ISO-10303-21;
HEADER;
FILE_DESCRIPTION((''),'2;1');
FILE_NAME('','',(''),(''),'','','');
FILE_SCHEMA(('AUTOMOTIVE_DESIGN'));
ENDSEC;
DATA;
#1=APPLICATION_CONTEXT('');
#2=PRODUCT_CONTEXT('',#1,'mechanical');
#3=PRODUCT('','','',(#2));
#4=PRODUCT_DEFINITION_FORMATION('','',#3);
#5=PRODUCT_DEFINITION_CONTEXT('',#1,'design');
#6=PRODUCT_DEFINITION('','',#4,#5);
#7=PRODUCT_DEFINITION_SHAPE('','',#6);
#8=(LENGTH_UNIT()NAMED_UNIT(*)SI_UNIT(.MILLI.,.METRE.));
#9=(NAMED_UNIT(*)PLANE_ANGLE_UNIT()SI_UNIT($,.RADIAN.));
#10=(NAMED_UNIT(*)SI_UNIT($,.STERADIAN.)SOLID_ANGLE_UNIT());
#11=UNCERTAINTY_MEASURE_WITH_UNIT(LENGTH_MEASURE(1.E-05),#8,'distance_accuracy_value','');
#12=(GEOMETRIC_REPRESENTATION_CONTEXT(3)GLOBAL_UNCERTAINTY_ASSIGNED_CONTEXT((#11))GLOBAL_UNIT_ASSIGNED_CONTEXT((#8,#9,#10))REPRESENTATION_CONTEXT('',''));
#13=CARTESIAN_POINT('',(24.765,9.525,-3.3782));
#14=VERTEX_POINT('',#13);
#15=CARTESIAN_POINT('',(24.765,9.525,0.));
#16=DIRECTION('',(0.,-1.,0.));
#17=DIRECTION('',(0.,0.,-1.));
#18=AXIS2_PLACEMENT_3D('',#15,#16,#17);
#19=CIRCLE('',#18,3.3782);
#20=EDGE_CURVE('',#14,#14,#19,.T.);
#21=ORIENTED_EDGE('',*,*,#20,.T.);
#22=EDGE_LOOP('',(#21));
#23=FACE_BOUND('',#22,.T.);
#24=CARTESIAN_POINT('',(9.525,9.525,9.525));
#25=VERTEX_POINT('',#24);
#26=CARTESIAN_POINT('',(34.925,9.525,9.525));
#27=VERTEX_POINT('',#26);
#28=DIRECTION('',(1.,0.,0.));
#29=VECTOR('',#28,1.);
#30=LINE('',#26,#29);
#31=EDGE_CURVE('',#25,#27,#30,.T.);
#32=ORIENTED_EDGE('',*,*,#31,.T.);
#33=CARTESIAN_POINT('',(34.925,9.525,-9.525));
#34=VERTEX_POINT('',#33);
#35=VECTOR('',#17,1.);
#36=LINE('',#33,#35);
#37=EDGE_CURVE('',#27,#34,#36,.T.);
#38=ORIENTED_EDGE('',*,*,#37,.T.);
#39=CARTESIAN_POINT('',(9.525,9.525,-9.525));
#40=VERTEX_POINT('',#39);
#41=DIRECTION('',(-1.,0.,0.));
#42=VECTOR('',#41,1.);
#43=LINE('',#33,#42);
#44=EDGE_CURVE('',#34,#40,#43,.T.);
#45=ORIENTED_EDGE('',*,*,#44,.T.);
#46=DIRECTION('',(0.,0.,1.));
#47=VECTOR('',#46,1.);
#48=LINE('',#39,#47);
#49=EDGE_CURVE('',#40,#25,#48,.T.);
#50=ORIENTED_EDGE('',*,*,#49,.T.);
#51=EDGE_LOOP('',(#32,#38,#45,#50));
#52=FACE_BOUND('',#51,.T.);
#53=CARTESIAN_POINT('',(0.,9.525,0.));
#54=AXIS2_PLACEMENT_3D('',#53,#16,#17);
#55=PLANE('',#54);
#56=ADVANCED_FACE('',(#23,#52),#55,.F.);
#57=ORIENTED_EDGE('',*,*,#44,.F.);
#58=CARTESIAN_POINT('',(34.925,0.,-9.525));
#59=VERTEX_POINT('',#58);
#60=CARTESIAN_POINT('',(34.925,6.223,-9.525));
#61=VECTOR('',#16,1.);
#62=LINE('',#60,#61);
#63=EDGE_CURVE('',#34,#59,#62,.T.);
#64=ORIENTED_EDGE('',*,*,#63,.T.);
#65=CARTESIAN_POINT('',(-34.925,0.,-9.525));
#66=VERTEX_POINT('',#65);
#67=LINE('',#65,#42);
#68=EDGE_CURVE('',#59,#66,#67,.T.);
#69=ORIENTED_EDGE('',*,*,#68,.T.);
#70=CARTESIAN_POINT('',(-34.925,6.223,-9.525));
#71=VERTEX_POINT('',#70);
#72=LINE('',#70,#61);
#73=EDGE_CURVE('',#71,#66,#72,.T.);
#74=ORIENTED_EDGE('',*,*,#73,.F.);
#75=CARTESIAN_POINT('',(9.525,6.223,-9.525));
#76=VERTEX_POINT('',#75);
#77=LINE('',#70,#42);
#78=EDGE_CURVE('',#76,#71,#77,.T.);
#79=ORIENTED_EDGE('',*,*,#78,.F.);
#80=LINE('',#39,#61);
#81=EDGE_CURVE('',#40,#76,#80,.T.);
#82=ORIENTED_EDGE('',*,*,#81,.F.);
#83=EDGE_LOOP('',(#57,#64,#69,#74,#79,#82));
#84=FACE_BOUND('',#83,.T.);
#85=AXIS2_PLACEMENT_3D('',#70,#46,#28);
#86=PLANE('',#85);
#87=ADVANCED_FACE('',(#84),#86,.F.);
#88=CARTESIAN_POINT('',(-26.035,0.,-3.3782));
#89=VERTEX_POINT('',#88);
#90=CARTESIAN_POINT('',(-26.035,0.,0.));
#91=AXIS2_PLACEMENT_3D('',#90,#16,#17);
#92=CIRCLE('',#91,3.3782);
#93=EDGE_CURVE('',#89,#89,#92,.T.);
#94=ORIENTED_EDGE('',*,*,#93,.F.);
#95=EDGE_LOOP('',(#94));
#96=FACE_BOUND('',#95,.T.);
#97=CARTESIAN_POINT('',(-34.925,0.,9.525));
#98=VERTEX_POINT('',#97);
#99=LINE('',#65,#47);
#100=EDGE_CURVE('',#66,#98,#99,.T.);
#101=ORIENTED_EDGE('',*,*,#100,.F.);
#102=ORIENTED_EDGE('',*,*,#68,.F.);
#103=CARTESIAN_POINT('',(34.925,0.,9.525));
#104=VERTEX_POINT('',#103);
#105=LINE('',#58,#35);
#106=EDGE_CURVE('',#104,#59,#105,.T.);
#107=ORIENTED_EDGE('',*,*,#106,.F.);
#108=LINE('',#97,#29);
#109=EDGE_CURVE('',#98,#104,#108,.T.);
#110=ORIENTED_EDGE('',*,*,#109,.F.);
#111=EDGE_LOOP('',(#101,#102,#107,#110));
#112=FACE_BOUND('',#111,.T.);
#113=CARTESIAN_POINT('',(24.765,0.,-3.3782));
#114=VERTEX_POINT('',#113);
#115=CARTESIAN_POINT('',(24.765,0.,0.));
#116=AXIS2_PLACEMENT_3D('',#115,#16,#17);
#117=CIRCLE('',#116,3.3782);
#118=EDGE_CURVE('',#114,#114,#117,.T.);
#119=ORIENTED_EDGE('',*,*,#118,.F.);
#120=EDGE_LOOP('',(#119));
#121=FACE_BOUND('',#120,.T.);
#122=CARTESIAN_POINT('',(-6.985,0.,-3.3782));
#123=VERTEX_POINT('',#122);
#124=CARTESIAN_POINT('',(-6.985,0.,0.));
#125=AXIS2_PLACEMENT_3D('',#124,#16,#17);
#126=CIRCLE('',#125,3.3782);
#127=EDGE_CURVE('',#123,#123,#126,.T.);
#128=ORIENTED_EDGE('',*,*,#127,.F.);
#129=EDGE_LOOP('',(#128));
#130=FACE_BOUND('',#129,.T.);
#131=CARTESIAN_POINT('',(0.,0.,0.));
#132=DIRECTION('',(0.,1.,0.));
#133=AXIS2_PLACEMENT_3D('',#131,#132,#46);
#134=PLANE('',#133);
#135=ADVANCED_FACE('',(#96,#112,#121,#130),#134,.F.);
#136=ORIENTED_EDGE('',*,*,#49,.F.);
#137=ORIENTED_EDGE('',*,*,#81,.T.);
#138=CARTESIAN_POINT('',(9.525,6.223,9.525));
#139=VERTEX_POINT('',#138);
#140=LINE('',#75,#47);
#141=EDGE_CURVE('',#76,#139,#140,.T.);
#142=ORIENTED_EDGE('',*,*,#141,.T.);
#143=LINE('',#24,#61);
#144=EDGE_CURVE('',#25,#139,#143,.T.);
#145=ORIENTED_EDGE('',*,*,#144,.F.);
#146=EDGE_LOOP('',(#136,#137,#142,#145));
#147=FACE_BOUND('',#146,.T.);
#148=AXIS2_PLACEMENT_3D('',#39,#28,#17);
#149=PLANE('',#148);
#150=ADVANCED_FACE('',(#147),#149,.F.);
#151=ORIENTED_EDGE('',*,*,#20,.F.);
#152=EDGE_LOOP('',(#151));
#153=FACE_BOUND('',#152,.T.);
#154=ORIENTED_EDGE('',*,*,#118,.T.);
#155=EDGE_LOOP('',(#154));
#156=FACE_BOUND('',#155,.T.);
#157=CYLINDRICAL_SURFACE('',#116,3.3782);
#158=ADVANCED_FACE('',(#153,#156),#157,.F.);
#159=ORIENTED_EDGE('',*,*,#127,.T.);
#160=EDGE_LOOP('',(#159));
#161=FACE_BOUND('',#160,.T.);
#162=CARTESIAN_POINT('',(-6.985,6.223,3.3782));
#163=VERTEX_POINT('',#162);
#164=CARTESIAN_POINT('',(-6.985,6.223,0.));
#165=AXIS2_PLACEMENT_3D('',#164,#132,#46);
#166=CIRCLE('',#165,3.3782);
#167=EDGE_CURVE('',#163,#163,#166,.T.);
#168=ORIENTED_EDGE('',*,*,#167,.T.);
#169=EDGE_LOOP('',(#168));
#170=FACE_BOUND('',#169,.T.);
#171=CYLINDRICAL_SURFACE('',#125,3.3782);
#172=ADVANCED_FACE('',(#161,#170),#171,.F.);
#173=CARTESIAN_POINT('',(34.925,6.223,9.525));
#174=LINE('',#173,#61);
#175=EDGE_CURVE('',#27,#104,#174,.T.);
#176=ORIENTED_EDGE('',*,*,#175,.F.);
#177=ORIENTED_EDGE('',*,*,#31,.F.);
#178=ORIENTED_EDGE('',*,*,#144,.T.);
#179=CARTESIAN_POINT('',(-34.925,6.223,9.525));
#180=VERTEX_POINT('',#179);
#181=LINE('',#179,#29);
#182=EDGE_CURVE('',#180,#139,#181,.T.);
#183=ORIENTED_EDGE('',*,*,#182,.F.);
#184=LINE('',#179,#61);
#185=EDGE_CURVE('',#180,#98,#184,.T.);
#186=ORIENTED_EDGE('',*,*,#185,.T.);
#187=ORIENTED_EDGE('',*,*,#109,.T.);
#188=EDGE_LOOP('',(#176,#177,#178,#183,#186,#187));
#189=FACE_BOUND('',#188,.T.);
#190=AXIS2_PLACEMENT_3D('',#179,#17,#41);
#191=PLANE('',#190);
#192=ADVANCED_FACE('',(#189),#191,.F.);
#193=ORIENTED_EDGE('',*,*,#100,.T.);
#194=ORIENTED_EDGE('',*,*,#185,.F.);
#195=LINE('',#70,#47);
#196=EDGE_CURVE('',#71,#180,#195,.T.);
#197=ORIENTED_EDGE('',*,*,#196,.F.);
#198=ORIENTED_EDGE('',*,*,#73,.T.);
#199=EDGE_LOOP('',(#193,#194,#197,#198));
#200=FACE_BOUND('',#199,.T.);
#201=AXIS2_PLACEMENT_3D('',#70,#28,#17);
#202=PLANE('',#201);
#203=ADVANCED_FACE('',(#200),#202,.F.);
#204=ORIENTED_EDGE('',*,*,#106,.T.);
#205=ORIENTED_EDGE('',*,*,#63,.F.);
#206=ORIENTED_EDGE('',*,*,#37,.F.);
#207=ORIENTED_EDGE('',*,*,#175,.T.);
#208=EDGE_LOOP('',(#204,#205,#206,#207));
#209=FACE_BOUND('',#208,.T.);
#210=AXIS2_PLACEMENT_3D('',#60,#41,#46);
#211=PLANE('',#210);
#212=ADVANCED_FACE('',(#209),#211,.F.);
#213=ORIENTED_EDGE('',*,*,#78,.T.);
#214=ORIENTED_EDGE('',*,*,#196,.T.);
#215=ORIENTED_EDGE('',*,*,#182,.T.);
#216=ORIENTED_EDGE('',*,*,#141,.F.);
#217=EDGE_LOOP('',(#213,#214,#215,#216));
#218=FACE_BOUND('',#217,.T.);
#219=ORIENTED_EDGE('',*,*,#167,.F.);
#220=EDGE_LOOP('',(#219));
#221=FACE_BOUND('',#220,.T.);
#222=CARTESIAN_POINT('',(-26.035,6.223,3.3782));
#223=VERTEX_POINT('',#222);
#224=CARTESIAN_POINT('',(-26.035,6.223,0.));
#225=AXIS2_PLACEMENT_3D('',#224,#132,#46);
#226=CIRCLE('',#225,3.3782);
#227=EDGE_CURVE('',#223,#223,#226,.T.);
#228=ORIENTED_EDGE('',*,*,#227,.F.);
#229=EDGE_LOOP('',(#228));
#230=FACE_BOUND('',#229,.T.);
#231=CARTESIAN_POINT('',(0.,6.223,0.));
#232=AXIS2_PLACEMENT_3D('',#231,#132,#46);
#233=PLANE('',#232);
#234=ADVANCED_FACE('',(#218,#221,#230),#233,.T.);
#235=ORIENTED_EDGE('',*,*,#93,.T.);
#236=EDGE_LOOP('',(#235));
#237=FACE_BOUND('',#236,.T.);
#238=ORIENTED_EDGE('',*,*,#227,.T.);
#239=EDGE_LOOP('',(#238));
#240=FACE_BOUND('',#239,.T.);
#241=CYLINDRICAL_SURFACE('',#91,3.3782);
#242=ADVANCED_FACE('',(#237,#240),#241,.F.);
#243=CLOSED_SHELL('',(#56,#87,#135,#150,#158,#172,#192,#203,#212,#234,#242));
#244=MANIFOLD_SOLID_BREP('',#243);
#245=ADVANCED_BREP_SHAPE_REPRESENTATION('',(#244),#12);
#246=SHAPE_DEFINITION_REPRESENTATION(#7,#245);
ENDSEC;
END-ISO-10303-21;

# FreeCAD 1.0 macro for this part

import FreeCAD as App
import Part
import Sketcher
from FreeCAD import Vector
Q = App.Units.Quantity


def add_polygon(sketch, points):
    """Adds a closed chain of lines whose ends are joined by coincident constraints."""
    first, n = sketch.GeometryCount, len(points)
    for a, b in zip(points, points[1:] + points[:1]):
        sketch.addGeometry(Part.LineSegment(App.Vector(*a, 0), App.Vector(*b, 0)), False)
    for i in range(n):
        sketch.addConstraint(Sketcher.Constraint("Coincident", first + i, 2, first + (i + 1) % n, 1))

doc = App.newDocument("Part")
body = doc.addObject("PartDesign::Body", "Body")

sketch1 = doc.addObject("Sketcher::SketchObject", "Sketch")
body.addObject(sketch1)
sketch1.AttachmentSupport = (doc.XZ_Plane, [""])
sketch1.MapMode = "FlatFace"
add_polygon(sketch1, [(-35, -10), (-35, 10), (35, 10), (35, -10)])
sketch1.addConstraint(Sketcher.Constraint("Vertical", 0))
sketch1.addConstraint(Sketcher.Constraint("Horizontal", 1))
sketch1.addConstraint(Sketcher.Constraint("Vertical", 2))
sketch1.addConstraint(Sketcher.Constraint("Horizontal", 3))
sketch1.addConstraint(Sketcher.Constraint("Symmetric", 0, 2, 2, 2, -1, 1))
sketch1.addConstraint(Sketcher.Constraint("DistanceX", 1, 1, 1, 2, Q("2.75 in")))
sketch1.addConstraint(Sketcher.Constraint("DistanceY", 0, 1, 0, 2, Q("0.75 in")))
pad1 = doc.addObject("PartDesign::Pad", "Pad")
body.addObject(pad1)
pad1.Profile = sketch1
pad1.Length = Q("0.245 in")
pad1.Reversed = True

sketch2 = doc.addObject("Sketcher::SketchObject", "Sketch001")
body.addObject(sketch2)
sketch2.AttachmentSupport = (doc.XZ_Plane, [""])
sketch2.MapMode = "FlatFace"
sketch2.AttachmentOffset = App.Placement(Vector(0, 0, -0.245 * 25.4), App.Rotation())
add_polygon(sketch2, [(10, -10), (10, 10), (35, 10), (35, -10)])
sketch2.addConstraint(Sketcher.Constraint("Vertical", 0))
sketch2.addConstraint(Sketcher.Constraint("Horizontal", 1))
sketch2.addConstraint(Sketcher.Constraint("Vertical", 2))
sketch2.addConstraint(Sketcher.Constraint("Horizontal", 3))
sketch2.addConstraint(Sketcher.Constraint("DistanceX", 1, 1, 1, 2, Q("1 in")))
sketch2.addConstraint(Sketcher.Constraint("DistanceY", 0, 1, 0, 2, Q("0.75 in")))
sketch2.addConstraint(Sketcher.Constraint("DistanceX", -1, 1, 0, 2, Q("0.375 in")))
sketch2.addConstraint(Sketcher.Constraint("DistanceY", -1, 1, 0, 2, Q("0.375 in")))
pad2 = doc.addObject("PartDesign::Pad", "Pad001")
body.addObject(pad2)
pad2.Profile = sketch2
pad2.Length = Q("0.13 in")
pad2.Reversed = True

sketch3 = doc.addObject("Sketcher::SketchObject", "Sketch002")
body.addObject(sketch3)
sketch3.AttachmentSupport = (doc.XZ_Plane, [""])
sketch3.MapMode = "FlatFace"
sketch3.addGeometry(Part.Circle(Vector(24.8, 0, 0), Vector(0, 0, 1), 3.4), False)
sketch3.addGeometry(Part.Circle(Vector(-7, 0, 0), Vector(0, 0, 1), 3.4), False)
sketch3.addGeometry(Part.Circle(Vector(-26, 0, 0), Vector(0, 0, 1), 3.4), False)
sketch3.addConstraint(Sketcher.Constraint("Equal", 0, 1))
sketch3.addConstraint(Sketcher.Constraint("Equal", 1, 2))
sketch3.addConstraint(Sketcher.Constraint("PointOnObject", 0, 3, -1))
sketch3.addConstraint(Sketcher.Constraint("PointOnObject", 1, 3, -1))
sketch3.addConstraint(Sketcher.Constraint("PointOnObject", 2, 3, -1))
sketch3.addConstraint(Sketcher.Constraint("Diameter", 0, Q("0.266 in")))
sketch3.addConstraint(Sketcher.Constraint("DistanceX", 2, 3, 0, 3, Q("2 in")))
sketch3.addConstraint(Sketcher.Constraint("DistanceX", 1, 3, 0, 3, Q("1.25 in")))
sketch3.addConstraint(Sketcher.Constraint("DistanceX", -1, 1, 0, 3, Q("0.975 in")))
doc.recompute()
hole = doc.addObject("PartDesign::Hole", "Hole")
body.addObject(hole)
hole.Profile = sketch3
hole.ThreadType = "None"
hole.Diameter = Q("0.266 in")
hole.DepthType = "ThroughAll"

doc.recompute()
